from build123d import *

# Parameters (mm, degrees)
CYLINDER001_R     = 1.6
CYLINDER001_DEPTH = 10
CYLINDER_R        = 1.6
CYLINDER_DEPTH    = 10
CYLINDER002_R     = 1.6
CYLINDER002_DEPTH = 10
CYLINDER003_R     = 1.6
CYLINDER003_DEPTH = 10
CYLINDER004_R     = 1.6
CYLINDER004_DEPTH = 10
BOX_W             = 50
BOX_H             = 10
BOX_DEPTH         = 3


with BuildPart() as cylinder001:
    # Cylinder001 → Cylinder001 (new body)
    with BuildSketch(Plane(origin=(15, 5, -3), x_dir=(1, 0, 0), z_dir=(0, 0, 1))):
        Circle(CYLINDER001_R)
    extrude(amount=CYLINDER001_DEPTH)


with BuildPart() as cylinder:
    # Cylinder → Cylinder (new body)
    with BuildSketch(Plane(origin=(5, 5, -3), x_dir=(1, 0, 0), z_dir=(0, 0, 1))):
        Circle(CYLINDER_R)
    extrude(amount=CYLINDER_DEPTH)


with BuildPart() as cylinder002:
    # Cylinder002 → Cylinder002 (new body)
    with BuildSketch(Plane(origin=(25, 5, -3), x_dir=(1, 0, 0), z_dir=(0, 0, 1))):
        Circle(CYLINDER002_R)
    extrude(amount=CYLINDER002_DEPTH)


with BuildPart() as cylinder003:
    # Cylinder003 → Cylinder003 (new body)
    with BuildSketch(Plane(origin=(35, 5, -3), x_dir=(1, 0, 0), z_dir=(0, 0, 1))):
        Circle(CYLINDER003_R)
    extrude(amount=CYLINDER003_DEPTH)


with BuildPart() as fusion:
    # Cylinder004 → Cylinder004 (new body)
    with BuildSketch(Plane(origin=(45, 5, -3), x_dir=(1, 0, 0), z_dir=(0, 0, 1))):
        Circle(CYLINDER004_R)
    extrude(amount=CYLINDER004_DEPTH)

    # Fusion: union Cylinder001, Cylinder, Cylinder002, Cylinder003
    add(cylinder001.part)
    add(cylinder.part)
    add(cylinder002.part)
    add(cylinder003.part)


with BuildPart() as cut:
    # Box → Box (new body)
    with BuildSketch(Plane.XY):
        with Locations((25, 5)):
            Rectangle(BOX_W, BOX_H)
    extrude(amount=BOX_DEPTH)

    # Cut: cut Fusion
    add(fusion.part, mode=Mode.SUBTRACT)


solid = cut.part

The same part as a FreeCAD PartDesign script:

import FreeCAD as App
import Part
import Sketcher
from FreeCAD import Vector
Q = App.Units.Quantity

doc = App.newDocument("Part")
body = doc.addObject("PartDesign::Body", "Body")

sketch1 = doc.addObject("Sketcher::SketchObject", "Sketch")
body.addObject(sketch1)
sketch1.AttachmentSupport = (doc.XY_Plane, [""])
sketch1.MapMode = "FlatFace"
sketch1.AttachmentOffset = App.Placement(Vector(0, 0, -3), App.Rotation())
sketch1.addGeometry(Part.Circle(Vector(15, 5, 0), Vector(0, 0, 1), 1.6), False)
sketch1.addConstraint([
    Sketcher.Constraint("Diameter", 0, Q("3.2 mm")),
    Sketcher.Constraint("DistanceX", -1, 1, 0, 3, Q("15 mm")),
    Sketcher.Constraint("DistanceY", -1, 1, 0, 3, Q("5 mm")),
])
pad1 = doc.addObject("PartDesign::Pad", "Pad")
body.addObject(pad1)
pad1.Profile = sketch1
pad1.Length = 10
body2 = doc.addObject("PartDesign::Body", "Body001")

sketch2 = doc.addObject("Sketcher::SketchObject", "Sketch001")
body2.addObject(sketch2)
sketch2.AttachmentSupport = (doc.getObject("XY_Plane001"), [""])
sketch2.MapMode = "FlatFace"
sketch2.AttachmentOffset = App.Placement(Vector(0, 0, -3), App.Rotation())
sketch2.addGeometry(Part.Circle(Vector(5, 5, 0), Vector(0, 0, 1), 1.6), False)
sketch2.addConstraint([
    Sketcher.Constraint("Diameter", 0, Q("3.2 mm")),
    Sketcher.Constraint("DistanceX", -1, 1, 0, 3, Q("5 mm")),
    Sketcher.Constraint("DistanceY", -1, 1, 0, 3, Q("5 mm")),
])
pad2 = doc.addObject("PartDesign::Pad", "Pad001")
body2.addObject(pad2)
pad2.Profile = sketch2
pad2.Length = 10
body3 = doc.addObject("PartDesign::Body", "Body002")

sketch3 = doc.addObject("Sketcher::SketchObject", "Sketch002")
body3.addObject(sketch3)
sketch3.AttachmentSupport = (doc.getObject("XY_Plane002"), [""])
sketch3.MapMode = "FlatFace"
sketch3.AttachmentOffset = App.Placement(Vector(0, 0, -3), App.Rotation())
sketch3.addGeometry(Part.Circle(Vector(25, 5, 0), Vector(0, 0, 1), 1.6), False)
sketch3.addConstraint([
    Sketcher.Constraint("Diameter", 0, Q("3.2 mm")),
    Sketcher.Constraint("DistanceX", -1, 1, 0, 3, Q("25 mm")),
    Sketcher.Constraint("DistanceY", -1, 1, 0, 3, Q("5 mm")),
])
pad3 = doc.addObject("PartDesign::Pad", "Pad002")
body3.addObject(pad3)
pad3.Profile = sketch3
pad3.Length = 10
body4 = doc.addObject("PartDesign::Body", "Body003")

sketch4 = doc.addObject("Sketcher::SketchObject", "Sketch003")
body4.addObject(sketch4)
sketch4.AttachmentSupport = (doc.getObject("XY_Plane003"), [""])
sketch4.MapMode = "FlatFace"
sketch4.AttachmentOffset = App.Placement(Vector(0, 0, -3), App.Rotation())
sketch4.addGeometry(Part.Circle(Vector(35, 5, 0), Vector(0, 0, 1), 1.6), False)
sketch4.addConstraint([
    Sketcher.Constraint("Diameter", 0, Q("3.2 mm")),
    Sketcher.Constraint("DistanceX", -1, 1, 0, 3, Q("35 mm")),
    Sketcher.Constraint("DistanceY", -1, 1, 0, 3, Q("5 mm")),
])
pad4 = doc.addObject("PartDesign::Pad", "Pad003")
body4.addObject(pad4)
pad4.Profile = sketch4
pad4.Length = 10
body5 = doc.addObject("PartDesign::Body", "Body004")
body5.AllowCompound = True

sketch5 = doc.addObject("Sketcher::SketchObject", "Sketch004")
body5.addObject(sketch5)
sketch5.AttachmentSupport = (doc.getObject("XY_Plane004"), [""])
sketch5.MapMode = "FlatFace"
sketch5.AttachmentOffset = App.Placement(Vector(0, 0, -3), App.Rotation())
sketch5.addGeometry(Part.Circle(Vector(45, 5, 0), Vector(0, 0, 1), 1.6), False)
sketch5.addConstraint([
    Sketcher.Constraint("Diameter", 0, Q("3.2 mm")),
    Sketcher.Constraint("DistanceX", -1, 1, 0, 3, Q("45 mm")),
    Sketcher.Constraint("DistanceY", -1, 1, 0, 3, Q("5 mm")),
])
pad5 = doc.addObject("PartDesign::Pad", "Pad004")
body5.addObject(pad5)
pad5.Profile = sketch5
pad5.Length = 10
doc.recompute()

boolean = doc.addObject("PartDesign::Boolean", "Boolean")
body5.addObject(boolean)
boolean.Type = "Fuse"
boolean.addObjects([body])
doc.recompute()

boolean2 = doc.addObject("PartDesign::Boolean", "Boolean001")
body5.addObject(boolean2)
boolean2.Type = "Fuse"
boolean2.addObjects([body2])
doc.recompute()

boolean3 = doc.addObject("PartDesign::Boolean", "Boolean002")
body5.addObject(boolean3)
boolean3.Type = "Fuse"
boolean3.addObjects([body3])
doc.recompute()

boolean4 = doc.addObject("PartDesign::Boolean", "Boolean003")
body5.addObject(boolean4)
boolean4.Type = "Fuse"
boolean4.addObjects([body4])
body6 = doc.addObject("PartDesign::Body", "Body005")

sketch6 = doc.addObject("Sketcher::SketchObject", "Sketch005")
body6.addObject(sketch6)
sketch6.AttachmentSupport = (doc.getObject("XY_Plane005"), [""])
sketch6.MapMode = "FlatFace"
sketch6.addGeometry([
    Part.LineSegment(Vector(0, 10, 0), Vector(0, 0, 0)),
    Part.LineSegment(Vector(0, 0, 0), Vector(50, 0, 0)),
    Part.LineSegment(Vector(50, 0, 0), Vector(50, 10, 0)),
    Part.LineSegment(Vector(50, 10, 0), Vector(0, 10, 0)),
], False)
sketch6.addConstraint([
    Sketcher.Constraint("Coincident", 0, 2, 1, 1),
    Sketcher.Constraint("Coincident", 1, 2, 2, 1),
    Sketcher.Constraint("Coincident", 2, 2, 3, 1),
    Sketcher.Constraint("Coincident", 3, 2, 0, 1),
    Sketcher.Constraint("Vertical", 0),
    Sketcher.Constraint("Horizontal", 1),
    Sketcher.Constraint("Vertical", 2),
    Sketcher.Constraint("Horizontal", 3),
    Sketcher.Constraint("Coincident", 0, 2, -1, 1),
    Sketcher.Constraint("DistanceX", 1, 1, 1, 2, Q("50 mm")),
    Sketcher.Constraint("DistanceY", 0, 2, 0, 1, Q("10 mm")),
])
pad6 = doc.addObject("PartDesign::Pad", "Pad005")
body6.addObject(pad6)
pad6.Profile = sketch6
pad6.Length = 3
doc.recompute()

boolean5 = doc.addObject("PartDesign::Boolean", "Boolean004")
body6.addObject(boolean5)
boolean5.Type = "Cut"
boolean5.addObjects([body5])

doc.recompute()
